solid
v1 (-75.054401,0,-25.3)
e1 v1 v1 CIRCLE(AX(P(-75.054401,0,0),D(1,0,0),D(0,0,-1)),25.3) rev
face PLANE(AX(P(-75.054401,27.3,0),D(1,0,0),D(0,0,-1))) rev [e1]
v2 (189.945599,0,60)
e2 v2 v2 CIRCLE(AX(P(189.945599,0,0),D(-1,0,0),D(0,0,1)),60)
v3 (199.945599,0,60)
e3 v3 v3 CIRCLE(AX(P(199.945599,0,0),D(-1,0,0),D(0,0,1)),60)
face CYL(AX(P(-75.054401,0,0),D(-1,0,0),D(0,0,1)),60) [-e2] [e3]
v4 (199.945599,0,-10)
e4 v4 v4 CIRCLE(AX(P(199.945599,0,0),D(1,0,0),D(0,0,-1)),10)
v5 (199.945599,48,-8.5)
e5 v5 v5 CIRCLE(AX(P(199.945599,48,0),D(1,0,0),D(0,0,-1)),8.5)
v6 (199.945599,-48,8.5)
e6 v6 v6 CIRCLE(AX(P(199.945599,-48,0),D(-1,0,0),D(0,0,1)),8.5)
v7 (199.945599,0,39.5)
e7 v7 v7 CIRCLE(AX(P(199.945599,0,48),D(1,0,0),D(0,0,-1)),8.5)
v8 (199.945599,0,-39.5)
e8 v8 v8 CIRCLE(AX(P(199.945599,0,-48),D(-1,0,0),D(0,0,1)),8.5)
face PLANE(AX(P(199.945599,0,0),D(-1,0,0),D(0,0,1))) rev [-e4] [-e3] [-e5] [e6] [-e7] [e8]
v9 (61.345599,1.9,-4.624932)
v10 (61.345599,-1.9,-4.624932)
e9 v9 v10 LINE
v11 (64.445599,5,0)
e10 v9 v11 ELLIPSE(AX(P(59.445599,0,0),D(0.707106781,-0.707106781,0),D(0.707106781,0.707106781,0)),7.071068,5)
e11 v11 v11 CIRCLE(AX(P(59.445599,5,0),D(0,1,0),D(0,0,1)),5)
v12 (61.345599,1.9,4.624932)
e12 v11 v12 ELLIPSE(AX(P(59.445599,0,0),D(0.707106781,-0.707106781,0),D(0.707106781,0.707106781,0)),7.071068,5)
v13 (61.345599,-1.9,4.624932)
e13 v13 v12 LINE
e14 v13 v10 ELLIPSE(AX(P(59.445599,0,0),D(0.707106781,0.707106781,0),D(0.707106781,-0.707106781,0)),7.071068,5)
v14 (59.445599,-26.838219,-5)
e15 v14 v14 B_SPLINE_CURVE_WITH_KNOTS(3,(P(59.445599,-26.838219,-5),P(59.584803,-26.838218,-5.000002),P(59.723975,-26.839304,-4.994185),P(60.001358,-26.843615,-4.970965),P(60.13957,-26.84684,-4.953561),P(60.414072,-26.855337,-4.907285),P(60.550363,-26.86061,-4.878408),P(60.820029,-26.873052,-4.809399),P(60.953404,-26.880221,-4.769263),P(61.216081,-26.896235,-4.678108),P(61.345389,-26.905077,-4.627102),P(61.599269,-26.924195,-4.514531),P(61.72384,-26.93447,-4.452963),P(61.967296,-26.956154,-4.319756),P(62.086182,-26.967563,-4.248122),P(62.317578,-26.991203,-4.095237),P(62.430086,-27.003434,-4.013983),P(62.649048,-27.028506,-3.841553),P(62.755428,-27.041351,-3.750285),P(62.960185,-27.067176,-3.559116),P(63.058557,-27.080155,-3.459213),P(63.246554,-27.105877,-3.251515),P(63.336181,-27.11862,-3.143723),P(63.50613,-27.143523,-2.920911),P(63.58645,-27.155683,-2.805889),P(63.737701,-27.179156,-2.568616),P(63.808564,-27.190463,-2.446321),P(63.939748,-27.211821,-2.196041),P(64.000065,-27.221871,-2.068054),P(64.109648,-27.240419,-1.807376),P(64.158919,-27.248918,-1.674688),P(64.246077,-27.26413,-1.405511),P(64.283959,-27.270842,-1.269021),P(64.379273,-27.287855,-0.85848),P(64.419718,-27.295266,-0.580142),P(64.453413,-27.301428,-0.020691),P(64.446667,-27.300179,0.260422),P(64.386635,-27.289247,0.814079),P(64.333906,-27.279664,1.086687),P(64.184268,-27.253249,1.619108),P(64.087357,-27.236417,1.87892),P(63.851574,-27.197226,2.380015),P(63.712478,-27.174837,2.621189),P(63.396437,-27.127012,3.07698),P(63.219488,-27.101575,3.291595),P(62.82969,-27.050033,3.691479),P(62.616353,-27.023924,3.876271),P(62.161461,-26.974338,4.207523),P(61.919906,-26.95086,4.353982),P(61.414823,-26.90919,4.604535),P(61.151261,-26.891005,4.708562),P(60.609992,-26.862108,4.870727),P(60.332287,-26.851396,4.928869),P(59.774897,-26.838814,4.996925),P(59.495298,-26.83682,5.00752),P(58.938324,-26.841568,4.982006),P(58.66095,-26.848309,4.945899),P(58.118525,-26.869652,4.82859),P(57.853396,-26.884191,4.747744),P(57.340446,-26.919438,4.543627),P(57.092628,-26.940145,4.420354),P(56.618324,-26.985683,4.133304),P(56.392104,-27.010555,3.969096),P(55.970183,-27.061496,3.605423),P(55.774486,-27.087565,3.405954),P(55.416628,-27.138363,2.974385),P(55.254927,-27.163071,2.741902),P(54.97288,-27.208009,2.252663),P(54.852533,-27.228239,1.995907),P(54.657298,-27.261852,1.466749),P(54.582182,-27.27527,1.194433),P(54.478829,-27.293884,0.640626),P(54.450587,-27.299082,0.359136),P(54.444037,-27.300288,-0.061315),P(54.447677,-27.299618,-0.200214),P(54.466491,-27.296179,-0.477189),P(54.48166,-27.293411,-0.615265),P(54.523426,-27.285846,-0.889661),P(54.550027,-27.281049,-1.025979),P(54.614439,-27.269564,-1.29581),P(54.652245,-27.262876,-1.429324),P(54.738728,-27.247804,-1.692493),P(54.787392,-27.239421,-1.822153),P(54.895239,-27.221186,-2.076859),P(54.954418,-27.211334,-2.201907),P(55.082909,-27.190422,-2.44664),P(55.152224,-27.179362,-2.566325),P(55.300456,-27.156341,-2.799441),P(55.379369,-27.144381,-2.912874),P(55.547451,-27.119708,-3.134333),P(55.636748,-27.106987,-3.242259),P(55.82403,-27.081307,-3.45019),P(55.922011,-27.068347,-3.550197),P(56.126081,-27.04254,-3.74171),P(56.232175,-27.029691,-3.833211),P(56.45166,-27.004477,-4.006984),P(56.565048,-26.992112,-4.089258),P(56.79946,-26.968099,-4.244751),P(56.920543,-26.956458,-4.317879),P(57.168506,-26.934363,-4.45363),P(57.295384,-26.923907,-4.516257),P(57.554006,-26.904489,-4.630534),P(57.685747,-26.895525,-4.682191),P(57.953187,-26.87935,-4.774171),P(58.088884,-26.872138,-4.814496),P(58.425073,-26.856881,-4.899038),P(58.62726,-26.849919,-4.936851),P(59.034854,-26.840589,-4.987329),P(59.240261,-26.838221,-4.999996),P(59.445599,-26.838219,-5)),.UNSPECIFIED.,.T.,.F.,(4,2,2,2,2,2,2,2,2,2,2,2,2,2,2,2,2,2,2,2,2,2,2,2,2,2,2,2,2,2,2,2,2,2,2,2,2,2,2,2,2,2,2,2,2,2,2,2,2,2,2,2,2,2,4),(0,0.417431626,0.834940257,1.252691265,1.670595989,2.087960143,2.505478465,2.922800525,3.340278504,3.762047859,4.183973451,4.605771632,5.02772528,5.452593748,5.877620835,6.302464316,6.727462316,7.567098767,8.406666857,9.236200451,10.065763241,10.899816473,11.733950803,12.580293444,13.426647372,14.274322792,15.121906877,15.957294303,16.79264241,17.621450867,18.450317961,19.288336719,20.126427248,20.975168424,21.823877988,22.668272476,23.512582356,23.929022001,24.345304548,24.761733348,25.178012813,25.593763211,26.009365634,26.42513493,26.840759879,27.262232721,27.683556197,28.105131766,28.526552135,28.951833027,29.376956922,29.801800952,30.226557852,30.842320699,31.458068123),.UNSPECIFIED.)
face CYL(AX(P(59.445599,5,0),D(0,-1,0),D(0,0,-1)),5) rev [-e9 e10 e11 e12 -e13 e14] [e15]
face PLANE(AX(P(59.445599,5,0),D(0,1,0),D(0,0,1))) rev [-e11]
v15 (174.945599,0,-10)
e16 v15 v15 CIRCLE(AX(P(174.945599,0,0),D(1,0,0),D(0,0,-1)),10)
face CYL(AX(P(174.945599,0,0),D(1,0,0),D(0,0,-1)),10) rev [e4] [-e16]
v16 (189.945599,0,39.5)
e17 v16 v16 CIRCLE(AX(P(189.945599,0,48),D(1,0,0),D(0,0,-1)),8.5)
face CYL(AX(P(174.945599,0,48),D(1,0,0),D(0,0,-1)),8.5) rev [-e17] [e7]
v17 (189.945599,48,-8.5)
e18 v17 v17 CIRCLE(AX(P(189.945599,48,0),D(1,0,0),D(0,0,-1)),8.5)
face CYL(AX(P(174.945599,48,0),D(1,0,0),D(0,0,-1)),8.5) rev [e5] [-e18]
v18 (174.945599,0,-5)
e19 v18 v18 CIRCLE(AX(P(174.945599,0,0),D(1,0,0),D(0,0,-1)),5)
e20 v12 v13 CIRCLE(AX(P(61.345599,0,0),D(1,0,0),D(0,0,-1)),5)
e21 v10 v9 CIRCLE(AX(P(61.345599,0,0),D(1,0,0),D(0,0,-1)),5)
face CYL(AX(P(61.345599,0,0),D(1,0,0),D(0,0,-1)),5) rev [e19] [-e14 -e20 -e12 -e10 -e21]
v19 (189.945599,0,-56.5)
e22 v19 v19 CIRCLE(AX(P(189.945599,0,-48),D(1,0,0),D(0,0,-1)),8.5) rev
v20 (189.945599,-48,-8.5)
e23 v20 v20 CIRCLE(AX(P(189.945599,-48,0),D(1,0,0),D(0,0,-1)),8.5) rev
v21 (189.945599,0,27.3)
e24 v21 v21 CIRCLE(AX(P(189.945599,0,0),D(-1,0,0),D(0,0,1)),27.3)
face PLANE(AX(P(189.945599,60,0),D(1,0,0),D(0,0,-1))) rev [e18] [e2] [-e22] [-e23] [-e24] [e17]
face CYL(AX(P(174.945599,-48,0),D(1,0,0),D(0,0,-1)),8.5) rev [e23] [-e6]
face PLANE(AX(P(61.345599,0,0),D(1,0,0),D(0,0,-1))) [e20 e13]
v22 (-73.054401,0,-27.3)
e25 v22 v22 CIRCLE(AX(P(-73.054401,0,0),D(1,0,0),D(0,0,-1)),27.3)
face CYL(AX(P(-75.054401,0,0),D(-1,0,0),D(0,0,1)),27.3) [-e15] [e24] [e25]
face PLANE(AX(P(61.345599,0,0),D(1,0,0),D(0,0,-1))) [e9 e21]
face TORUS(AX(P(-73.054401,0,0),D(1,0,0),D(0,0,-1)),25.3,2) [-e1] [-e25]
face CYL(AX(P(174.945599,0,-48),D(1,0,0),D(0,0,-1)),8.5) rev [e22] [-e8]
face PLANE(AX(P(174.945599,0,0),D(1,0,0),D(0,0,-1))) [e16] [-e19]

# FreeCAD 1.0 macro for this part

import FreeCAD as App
import Part
import Sketcher

V = App.Vector
Q = App.Units.Quantity


def edges_at(feature, points):
    """Names of the edges that pass closest to the given points."""
    edges = feature.Shape.Edges
    near = lambda p: min(range(len(edges)), key=lambda i: edges[i].distToShape(Part.Vertex(*p))[0])
    return sorted({f"Edge{near(p) + 1}" for p in points})


def add_polygon(sketch, points):
    """Adds a closed chain of lines whose ends are joined by coincident constraints."""
    first, n = sketch.GeometryCount, len(points)
    for a, b in zip(points, points[1:] + points[:1]):
        sketch.addGeometry(Part.LineSegment(App.Vector(*a, 0), App.Vector(*b, 0)), False)
    for i in range(n):
        sketch.addConstraint(Sketcher.Constraint("Coincident", first + i, 2, first + (i + 1) % n, 1))

doc = App.newDocument("Part")
body = doc.addObject("PartDesign::Body", "Body")

sketch1 = doc.addObject("Sketcher::SketchObject", "Sketch")
body.addObject(sketch1)
sketch1.AttachmentSupport = (doc.XY_Plane, [""])
sketch1.MapMode = "FlatFace"
add_polygon(sketch1, [(-75.054401, 0), (199.945599, 0), (199.945599, 60), (189.945599, 60), (189.945599, 27.3), (-75.054401, 27.3)])
sketch1.addConstraint([
    Sketcher.Constraint("Horizontal", 0),
    Sketcher.Constraint("Vertical", 1),
    Sketcher.Constraint("Horizontal", 2),
    Sketcher.Constraint("Vertical", 3),
    Sketcher.Constraint("Horizontal", 4),
    Sketcher.Constraint("Vertical", 5),
    Sketcher.Constraint("PointOnObject", 0, 2, -1),
    Sketcher.Constraint("DistanceX", 0, 1, 0, 2, Q("275 mm")),
    Sketcher.Constraint("DistanceX", 2, 2, 2, 1, Q("10 mm")),
    Sketcher.Constraint("DistanceY", 1, 1, 1, 2, Q("60 mm")),
    Sketcher.Constraint("DistanceY", 3, 2, 3, 1, Q("32.7 mm")),
    Sketcher.Constraint("DistanceX", -1, 1, 0, 2, Q("199.945599 mm")),
])
revolution = doc.addObject("PartDesign::Revolution", "Revolution")
body.addObject(revolution)
revolution.Profile = sketch1
revolution.ReferenceAxis = (sketch1, ["H_Axis"])
revolution.Angle = 360

sketch2 = doc.addObject("Sketcher::SketchObject", "Sketch001")
body.addObject(sketch2)
sketch2.AttachmentSupport = (doc.YZ_Plane, [""])
sketch2.MapMode = "FlatFace"
sketch2.AttachmentOffset = App.Placement(V(0, 0, 199.945599), App.Rotation())
sketch2.addGeometry([
    Part.Circle(V(48, 0, 0), V(0, 0, 1), 8.5),
    Part.Circle(V(-48, 0, 0), V(0, 0, 1), 8.5),
    Part.Circle(V(0, 48, 0), V(0, 0, 1), 8.5),
    Part.Circle(V(0, -48, 0), V(0, 0, 1), 8.5),
    Part.Circle(V(0, 0, 0), V(0, 0, 1), 10),
], False)
sketch2.addConstraint([
    Sketcher.Constraint("Coincident", 4, 3, -1, 1),
    Sketcher.Constraint("Equal", 0, 1),
    Sketcher.Constraint("Equal", 1, 2),
    Sketcher.Constraint("Equal", 2, 3),
    Sketcher.Constraint("Symmetric", 0, 3, 1, 3, -1, 1),
    Sketcher.Constraint("Symmetric", 2, 3, 3, 3, -1, 1),
    Sketcher.Constraint("PointOnObject", 0, 3, -1),
    Sketcher.Constraint("PointOnObject", 2, 3, -2),
    Sketcher.Constraint("Diameter", 0, Q("17 mm")),
    Sketcher.Constraint("Diameter", 4, Q("20 mm")),
    Sketcher.Constraint("DistanceX", -1, 1, 0, 3, Q("48 mm")),
    Sketcher.Constraint("DistanceY", -1, 1, 2, 3, Q("48 mm")),
])
pocket1 = doc.addObject("PartDesign::Pocket", "Pocket")
body.addObject(pocket1)
pocket1.Profile = sketch2
pocket1.Length = 25

sketch3 = doc.addObject("Sketcher::SketchObject", "Sketch002")
body.addObject(sketch3)
sketch3.AttachmentSupport = (doc.YZ_Plane, [""])
sketch3.MapMode = "FlatFace"
sketch3.AttachmentOffset = App.Placement(V(0, 0, 174.945599), App.Rotation())
sketch3.addGeometry(Part.Circle(V(0, 0, 0), V(0, 0, 1), 5), False)
sketch3.addConstraint([
    Sketcher.Constraint("Coincident", 0, 3, -1, 1),
    Sketcher.Constraint("Diameter", 0, Q("10 mm")),
])
pocket2 = doc.addObject("PartDesign::Pocket", "Pocket001")
body.addObject(pocket2)
pocket2.Profile = sketch3
pocket2.Length = 113.6
doc.recompute()

fillet = doc.addObject("PartDesign::Fillet", "Fillet")
body.addObject(fillet)
fillet.Base = (pocket2, edges_at(pocket2, [(-75.054, 0, -27.3)]))
fillet.Radius = 2

sketch4 = doc.addObject("Sketcher::SketchObject", "Sketch003")
body.addObject(sketch4)
sketch4.AttachmentSupport = (doc.XZ_Plane, [""])
sketch4.MapMode = "FlatFace"
sketch4.addGeometry(Part.Circle(V(59.445599, 0, 0), V(0, 0, 1), 5), False)
sketch4.addConstraint([
    Sketcher.Constraint("PointOnObject", 0, 3, -1),
    Sketcher.Constraint("Diameter", 0, Q("10 mm")),
    Sketcher.Constraint("DistanceX", -1, 1, 0, 3, Q("59.445599 mm")),
])
pocket3 = doc.addObject("PartDesign::Pocket", "Pocket002")
body.addObject(pocket3)
pocket3.Profile = sketch4
pocket3.Type = "TwoLengths"
pocket3.Length = 5
pocket3.Length2 = 105.5

doc.recompute()
